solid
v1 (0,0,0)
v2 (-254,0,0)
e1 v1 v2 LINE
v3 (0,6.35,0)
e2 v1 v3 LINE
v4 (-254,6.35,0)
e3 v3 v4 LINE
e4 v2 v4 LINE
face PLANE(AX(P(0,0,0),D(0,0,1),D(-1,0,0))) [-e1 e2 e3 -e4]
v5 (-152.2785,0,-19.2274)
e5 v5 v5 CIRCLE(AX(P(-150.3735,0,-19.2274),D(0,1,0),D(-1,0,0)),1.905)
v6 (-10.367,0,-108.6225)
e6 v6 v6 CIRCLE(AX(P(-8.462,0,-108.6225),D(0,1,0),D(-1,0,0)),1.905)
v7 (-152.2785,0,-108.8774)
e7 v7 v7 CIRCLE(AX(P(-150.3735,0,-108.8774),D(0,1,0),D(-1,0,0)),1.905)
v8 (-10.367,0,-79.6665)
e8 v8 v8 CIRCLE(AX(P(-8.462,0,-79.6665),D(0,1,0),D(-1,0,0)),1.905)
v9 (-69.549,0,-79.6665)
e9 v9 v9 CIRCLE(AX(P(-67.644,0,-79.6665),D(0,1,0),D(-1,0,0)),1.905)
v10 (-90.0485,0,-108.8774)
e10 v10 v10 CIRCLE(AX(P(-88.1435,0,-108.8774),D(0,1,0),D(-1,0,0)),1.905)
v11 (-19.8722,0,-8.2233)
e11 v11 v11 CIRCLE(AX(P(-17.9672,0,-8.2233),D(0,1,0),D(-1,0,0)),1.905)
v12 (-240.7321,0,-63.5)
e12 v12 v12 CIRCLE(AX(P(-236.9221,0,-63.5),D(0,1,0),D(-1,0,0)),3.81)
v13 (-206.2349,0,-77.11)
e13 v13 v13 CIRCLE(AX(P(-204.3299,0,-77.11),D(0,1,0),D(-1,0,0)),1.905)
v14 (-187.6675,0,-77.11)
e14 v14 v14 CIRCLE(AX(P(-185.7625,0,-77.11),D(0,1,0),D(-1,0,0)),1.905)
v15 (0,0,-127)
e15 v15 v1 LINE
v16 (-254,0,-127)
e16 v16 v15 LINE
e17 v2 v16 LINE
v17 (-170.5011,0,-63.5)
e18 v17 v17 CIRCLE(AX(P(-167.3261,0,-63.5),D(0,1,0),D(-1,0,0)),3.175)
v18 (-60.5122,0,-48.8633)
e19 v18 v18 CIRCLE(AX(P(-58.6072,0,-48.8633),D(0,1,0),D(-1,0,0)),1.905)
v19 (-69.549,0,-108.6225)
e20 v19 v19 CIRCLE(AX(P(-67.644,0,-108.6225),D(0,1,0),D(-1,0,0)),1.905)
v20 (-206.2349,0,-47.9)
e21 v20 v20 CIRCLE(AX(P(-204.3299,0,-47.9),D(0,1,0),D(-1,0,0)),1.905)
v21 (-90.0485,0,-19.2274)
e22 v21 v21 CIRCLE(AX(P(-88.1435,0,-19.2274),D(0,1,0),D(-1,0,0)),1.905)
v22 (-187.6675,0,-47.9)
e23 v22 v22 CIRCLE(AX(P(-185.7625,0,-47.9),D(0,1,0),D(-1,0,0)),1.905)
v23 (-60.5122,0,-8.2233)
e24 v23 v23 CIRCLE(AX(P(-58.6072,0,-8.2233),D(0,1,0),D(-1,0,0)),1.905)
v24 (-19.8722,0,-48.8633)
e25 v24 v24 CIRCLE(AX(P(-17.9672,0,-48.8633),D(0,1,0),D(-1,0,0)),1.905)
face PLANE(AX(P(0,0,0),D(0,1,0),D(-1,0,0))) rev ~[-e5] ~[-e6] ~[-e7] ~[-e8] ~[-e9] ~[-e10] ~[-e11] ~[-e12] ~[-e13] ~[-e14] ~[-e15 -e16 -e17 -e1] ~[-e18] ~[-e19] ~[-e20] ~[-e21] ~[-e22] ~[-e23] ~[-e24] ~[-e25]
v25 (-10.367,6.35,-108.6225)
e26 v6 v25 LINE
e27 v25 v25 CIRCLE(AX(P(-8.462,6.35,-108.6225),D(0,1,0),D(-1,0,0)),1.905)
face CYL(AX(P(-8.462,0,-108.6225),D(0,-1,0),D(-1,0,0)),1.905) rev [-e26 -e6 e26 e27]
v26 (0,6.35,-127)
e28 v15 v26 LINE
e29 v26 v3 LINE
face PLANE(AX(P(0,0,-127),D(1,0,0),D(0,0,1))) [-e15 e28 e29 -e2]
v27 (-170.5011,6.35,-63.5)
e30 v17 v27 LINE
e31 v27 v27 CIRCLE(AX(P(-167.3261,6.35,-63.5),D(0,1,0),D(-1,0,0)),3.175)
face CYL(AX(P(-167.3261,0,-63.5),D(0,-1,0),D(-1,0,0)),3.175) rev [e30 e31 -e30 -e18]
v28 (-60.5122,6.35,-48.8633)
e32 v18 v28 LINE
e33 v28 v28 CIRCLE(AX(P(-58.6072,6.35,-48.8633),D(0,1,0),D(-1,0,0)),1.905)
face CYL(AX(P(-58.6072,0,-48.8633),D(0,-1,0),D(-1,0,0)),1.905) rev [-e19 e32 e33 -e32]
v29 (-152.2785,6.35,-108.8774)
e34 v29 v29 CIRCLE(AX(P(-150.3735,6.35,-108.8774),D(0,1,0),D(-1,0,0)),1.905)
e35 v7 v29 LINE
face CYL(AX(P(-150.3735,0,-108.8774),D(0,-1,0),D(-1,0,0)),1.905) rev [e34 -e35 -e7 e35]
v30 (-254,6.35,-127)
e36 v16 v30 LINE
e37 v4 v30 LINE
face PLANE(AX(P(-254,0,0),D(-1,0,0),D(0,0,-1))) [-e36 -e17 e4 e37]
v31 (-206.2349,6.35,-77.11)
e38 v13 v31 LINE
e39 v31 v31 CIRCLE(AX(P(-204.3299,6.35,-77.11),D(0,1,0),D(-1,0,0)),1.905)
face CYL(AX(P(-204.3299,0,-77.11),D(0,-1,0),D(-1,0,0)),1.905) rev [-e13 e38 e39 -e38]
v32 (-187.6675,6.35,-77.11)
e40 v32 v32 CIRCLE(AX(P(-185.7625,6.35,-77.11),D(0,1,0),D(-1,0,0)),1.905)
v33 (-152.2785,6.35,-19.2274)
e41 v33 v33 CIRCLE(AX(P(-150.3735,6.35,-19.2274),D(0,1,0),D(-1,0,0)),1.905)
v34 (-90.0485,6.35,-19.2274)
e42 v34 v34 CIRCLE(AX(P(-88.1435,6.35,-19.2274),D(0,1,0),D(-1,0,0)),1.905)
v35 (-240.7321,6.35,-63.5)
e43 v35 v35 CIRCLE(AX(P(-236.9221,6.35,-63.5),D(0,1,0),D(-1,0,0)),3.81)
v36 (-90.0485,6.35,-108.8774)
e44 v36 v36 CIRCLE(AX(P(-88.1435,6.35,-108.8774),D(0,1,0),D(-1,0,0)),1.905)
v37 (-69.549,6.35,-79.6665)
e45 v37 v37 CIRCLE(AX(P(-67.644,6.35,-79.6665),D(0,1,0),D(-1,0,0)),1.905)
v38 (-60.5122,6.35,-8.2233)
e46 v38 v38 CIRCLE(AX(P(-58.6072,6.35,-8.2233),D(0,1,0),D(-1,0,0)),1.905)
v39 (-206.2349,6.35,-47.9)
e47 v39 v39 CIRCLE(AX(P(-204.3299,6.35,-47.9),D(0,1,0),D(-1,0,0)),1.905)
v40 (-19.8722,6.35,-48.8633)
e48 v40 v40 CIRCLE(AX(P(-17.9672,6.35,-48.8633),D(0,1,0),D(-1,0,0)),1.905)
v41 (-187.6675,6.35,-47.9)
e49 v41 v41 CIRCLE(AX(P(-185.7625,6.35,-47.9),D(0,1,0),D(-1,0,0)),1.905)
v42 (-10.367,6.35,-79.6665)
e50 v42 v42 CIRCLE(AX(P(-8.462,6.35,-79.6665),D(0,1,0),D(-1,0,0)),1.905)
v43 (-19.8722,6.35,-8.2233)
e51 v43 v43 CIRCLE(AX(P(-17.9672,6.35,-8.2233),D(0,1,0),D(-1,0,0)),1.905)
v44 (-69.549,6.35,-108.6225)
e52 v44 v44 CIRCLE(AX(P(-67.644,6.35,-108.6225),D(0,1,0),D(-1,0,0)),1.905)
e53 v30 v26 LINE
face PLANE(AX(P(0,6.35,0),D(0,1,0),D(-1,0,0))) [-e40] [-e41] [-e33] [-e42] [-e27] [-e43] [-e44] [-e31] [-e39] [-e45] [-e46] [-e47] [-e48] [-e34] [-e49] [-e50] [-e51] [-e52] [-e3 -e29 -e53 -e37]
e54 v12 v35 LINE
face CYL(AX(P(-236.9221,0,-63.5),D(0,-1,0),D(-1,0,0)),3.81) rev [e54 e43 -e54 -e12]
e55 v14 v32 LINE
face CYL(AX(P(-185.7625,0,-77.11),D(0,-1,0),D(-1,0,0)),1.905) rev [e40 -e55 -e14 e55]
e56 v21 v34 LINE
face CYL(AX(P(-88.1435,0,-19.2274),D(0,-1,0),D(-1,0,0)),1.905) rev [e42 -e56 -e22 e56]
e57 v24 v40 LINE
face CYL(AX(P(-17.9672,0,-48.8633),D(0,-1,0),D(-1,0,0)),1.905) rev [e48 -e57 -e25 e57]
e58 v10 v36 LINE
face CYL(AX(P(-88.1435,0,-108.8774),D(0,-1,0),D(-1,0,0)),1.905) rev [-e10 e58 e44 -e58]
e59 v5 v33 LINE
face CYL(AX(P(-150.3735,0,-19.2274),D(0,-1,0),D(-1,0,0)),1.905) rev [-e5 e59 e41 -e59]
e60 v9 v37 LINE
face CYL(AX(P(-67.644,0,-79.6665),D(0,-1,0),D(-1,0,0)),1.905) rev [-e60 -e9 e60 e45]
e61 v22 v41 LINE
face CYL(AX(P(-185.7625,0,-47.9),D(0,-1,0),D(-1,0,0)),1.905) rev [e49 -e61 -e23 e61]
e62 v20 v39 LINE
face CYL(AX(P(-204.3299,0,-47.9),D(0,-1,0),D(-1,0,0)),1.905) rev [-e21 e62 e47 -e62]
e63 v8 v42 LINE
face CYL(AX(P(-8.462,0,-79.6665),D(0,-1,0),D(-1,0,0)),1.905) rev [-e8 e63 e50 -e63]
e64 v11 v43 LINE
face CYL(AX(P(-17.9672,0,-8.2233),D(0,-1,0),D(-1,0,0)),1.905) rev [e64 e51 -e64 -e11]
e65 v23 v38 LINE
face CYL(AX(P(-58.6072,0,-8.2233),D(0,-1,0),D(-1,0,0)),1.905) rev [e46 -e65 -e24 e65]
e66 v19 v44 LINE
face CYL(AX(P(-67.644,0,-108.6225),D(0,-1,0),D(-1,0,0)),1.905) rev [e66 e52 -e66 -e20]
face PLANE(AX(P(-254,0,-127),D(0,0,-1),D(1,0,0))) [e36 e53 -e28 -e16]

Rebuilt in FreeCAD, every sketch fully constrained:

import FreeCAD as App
import Part
import Sketcher
from FreeCAD import Vector
Q = App.Units.Quantity

doc = App.newDocument("Part")
body = doc.addObject("PartDesign::Body", "Body")

# Sketch on XZ plane
sketch1 = doc.addObject("Sketcher::SketchObject", "Sketch")
body.addObject(sketch1)
sketch1.AttachmentSupport = (doc.XZ_Plane, [""])
sketch1.MapMode = "FlatFace"
sketch1.addGeometry([
    Part.LineSegment(Vector(-254, 0, 0), Vector(0, 0, 0)),  # 0
    Part.LineSegment(Vector(0, 0, 0), Vector(0, -127, 0)),  # 1
    Part.LineSegment(Vector(0, -127, 0), Vector(-254, -127, 0)),  # 2
    Part.LineSegment(Vector(-254, -127, 0), Vector(-254, 0, 0)),  # 3
    Part.Circle(Vector(-8.5, -108.6, 0), Vector(0, 0, 1), 1.9),  # 4
    Part.Circle(Vector(-67.6, -108.6, 0), Vector(0, 0, 1), 1.9),  # 5
    Part.Circle(Vector(-88.1, -108.9, 0), Vector(0, 0, 1), 1.9),  # 6
    Part.Circle(Vector(-8.5, -79.7, 0), Vector(0, 0, 1), 1.9),  # 7
    Part.Circle(Vector(-67.6, -79.7, 0), Vector(0, 0, 1), 1.9),  # 8
    Part.Circle(Vector(-150.4, -108.9, 0), Vector(0, 0, 1), 1.9),  # 9
    Part.Circle(Vector(-185.8, -77.1, 0), Vector(0, 0, 1), 1.9),  # 10
    Part.Circle(Vector(-204.3, -77.1, 0), Vector(0, 0, 1), 1.9),  # 11
    Part.Circle(Vector(-18, -48.9, 0), Vector(0, 0, 1), 1.9),  # 12
    Part.Circle(Vector(-58.6, -48.9, 0), Vector(0, 0, 1), 1.9),  # 13
    Part.Circle(Vector(-18, -8.2, 0), Vector(0, 0, 1), 1.9),  # 14
    Part.Circle(Vector(-58.6, -8.2, 0), Vector(0, 0, 1), 1.9),  # 15
    Part.Circle(Vector(-88.1, -19.2, 0), Vector(0, 0, 1), 1.9),  # 16
    Part.Circle(Vector(-167.3, -63.5, 0), Vector(0, 0, 1), 3.2),  # 17
    Part.Circle(Vector(-185.8, -47.9, 0), Vector(0, 0, 1), 1.9),  # 18
    Part.Circle(Vector(-204.3, -47.9, 0), Vector(0, 0, 1), 1.9),  # 19
    Part.Circle(Vector(-236.9, -63.5, 0), Vector(0, 0, 1), 3.8),  # 20
    Part.Circle(Vector(-150.4, -19.2, 0), Vector(0, 0, 1), 1.9),  # 21
], False)
sketch1.addConstraint([
    Sketcher.Constraint("Coincident", 0, 2, 1, 1),
    Sketcher.Constraint("Coincident", 1, 2, 2, 1),
    Sketcher.Constraint("Coincident", 2, 2, 3, 1),
    Sketcher.Constraint("Coincident", 3, 2, 0, 1),
    Sketcher.Constraint("Horizontal", 0),
    Sketcher.Constraint("Vertical", 1),
    Sketcher.Constraint("Horizontal", 2),
    Sketcher.Constraint("Vertical", 3),
    Sketcher.Constraint("Coincident", 0, 2, -1, 1),
    Sketcher.Constraint("Equal", 4, 5),
    Sketcher.Constraint("Equal", 5, 6),
    Sketcher.Constraint("Equal", 6, 7),
    Sketcher.Constraint("Equal", 7, 8),
    Sketcher.Constraint("Equal", 8, 9),
    Sketcher.Constraint("Equal", 9, 10),
    Sketcher.Constraint("Equal", 10, 11),
    Sketcher.Constraint("Equal", 11, 12),
    Sketcher.Constraint("Equal", 12, 13),
    Sketcher.Constraint("Equal", 13, 14),
    Sketcher.Constraint("Equal", 14, 15),
    Sketcher.Constraint("Equal", 15, 16),
    Sketcher.Constraint("Equal", 16, 18),
    Sketcher.Constraint("Equal", 18, 19),
    Sketcher.Constraint("Equal", 19, 21),
    Sketcher.Constraint("Horizontal", 4, 3, 5, 3),
    Sketcher.Constraint("Horizontal", 7, 3, 8, 3),
    Sketcher.Constraint("Horizontal", 6, 3, 9, 3),
    Sketcher.Constraint("Horizontal", 10, 3, 11, 3),
    Sketcher.Constraint("Horizontal", 12, 3, 13, 3),
    Sketcher.Constraint("Horizontal", 14, 3, 15, 3),
    Sketcher.Constraint("Horizontal", 18, 3, 19, 3),
    Sketcher.Constraint("Horizontal", 17, 3, 20, 3),
    Sketcher.Constraint("Horizontal", 16, 3, 21, 3),
    Sketcher.Constraint("Vertical", 4, 3, 7, 3),
    Sketcher.Constraint("Vertical", 5, 3, 8, 3),
    Sketcher.Constraint("Vertical", 12, 3, 14, 3),
    Sketcher.Constraint("Vertical", 13, 3, 15, 3),
    Sketcher.Constraint("Vertical", 6, 3, 16, 3),
    Sketcher.Constraint("Vertical", 10, 3, 18, 3),
    Sketcher.Constraint("Vertical", 11, 3, 19, 3),
    Sketcher.Constraint("Vertical", 9, 3, 21, 3),
    Sketcher.Constraint("Diameter", 20, Q("0.3 in")),
    Sketcher.Constraint("Diameter", 4, Q("0.15 in")),
    Sketcher.Constraint("Diameter", 17, Q("0.25 in")),
    Sketcher.Constraint("DistanceX", 0, 1, 0, 2, Q("10 in")),
    Sketcher.Constraint("DistanceY", 1, 2, 1, 1, Q("5 in")),
    Sketcher.Constraint("DistanceY", 17, 3, -1, 1, Q("2.5 in")),
    Sketcher.Constraint("DistanceX", 13, 3, 12, 3, Q("1.6 in")),
    Sketcher.Constraint("DistanceY", 12, 3, 14, 3, Q("1.6 in")),
    Sketcher.Constraint("DistanceX", 20, 3, 17, 3, Q("2.74 in")),
    Sketcher.Constraint("DistanceX", 5, 3, 4, 3, Q("2.33 in")),
    Sketcher.Constraint("DistanceY", 4, 3, 7, 3, Q("1.14 in")),
    Sketcher.Constraint("DistanceX", 9, 3, 6, 3, Q("2.45 in")),
    Sketcher.Constraint("DistanceY", 10, 3, 18, 3, Q("1.15 in")),
    Sketcher.Constraint("DistanceX", 11, 3, 10, 3, Q("0.731 in")),
    Sketcher.Constraint("DistanceY", 6, 3, -1, 1, Q("4.2865 in")),
    Sketcher.Constraint("DistanceY", 8, 3, 16, 3, Q("2.3795 in")),
    Sketcher.Constraint("DistanceX", 4, 3, -1, 1, 8.462),
    Sketcher.Constraint("DistanceY", 4, 3, -1, 1, 108.6225),
    Sketcher.Constraint("DistanceX", 6, 3, -1, 1, 88.1435),
    Sketcher.Constraint("DistanceX", 10, 3, -1, 1, 185.7625),
    Sketcher.Constraint("DistanceY", 10, 3, -1, 1, 77.11),
    Sketcher.Constraint("DistanceX", 12, 3, -1, 1, 17.9672),
    Sketcher.Constraint("DistanceY", 12, 3, -1, 1, 48.8633),
    Sketcher.Constraint("DistanceX", 17, 3, -1, 1, 167.326),
])
pad1 = doc.addObject("PartDesign::Pad", "Pad")
body.addObject(pad1)
pad1.Profile = sketch1
pad1.Length = Q("0.25 in")
pad1.Reversed = True

doc.recompute()
